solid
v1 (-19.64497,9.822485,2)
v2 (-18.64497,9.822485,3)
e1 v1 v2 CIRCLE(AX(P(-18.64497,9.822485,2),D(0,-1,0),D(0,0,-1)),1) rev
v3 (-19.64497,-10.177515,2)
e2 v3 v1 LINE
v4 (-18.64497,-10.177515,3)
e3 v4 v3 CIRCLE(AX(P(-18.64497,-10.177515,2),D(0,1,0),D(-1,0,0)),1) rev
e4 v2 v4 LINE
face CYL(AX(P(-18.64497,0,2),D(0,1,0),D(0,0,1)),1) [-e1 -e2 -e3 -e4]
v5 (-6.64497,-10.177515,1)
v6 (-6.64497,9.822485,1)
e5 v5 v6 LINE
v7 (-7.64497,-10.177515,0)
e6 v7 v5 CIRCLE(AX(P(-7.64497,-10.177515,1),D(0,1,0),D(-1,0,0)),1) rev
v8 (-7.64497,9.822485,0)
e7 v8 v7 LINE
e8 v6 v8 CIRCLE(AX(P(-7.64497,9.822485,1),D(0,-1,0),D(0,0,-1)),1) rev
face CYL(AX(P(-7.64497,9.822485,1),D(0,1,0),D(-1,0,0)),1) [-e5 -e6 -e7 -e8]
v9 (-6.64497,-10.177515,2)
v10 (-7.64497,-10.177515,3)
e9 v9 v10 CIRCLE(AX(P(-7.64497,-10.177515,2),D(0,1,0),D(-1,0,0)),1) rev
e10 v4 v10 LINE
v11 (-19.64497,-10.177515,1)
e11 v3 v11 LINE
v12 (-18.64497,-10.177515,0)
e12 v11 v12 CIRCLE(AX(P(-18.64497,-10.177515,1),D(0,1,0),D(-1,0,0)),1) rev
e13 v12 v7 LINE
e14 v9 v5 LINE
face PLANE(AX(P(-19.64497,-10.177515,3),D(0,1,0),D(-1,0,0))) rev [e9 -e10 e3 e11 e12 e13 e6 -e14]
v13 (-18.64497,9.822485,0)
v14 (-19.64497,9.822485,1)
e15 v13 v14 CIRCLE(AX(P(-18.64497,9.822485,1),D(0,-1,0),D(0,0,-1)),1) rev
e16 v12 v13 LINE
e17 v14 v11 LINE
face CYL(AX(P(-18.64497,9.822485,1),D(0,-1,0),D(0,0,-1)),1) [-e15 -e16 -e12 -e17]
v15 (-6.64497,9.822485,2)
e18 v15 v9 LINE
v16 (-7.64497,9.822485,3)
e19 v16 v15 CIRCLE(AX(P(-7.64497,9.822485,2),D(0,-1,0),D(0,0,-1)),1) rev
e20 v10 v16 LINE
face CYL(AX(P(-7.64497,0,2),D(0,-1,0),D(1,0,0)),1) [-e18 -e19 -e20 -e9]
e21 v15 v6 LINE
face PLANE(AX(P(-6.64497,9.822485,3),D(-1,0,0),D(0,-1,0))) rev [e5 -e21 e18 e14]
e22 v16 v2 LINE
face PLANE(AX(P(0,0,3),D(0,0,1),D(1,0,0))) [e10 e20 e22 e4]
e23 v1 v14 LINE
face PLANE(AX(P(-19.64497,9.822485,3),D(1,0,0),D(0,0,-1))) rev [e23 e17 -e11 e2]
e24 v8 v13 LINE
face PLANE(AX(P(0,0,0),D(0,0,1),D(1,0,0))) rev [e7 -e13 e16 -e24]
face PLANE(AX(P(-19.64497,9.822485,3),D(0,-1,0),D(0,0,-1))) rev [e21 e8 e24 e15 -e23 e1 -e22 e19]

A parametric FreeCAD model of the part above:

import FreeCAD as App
import Part
import Sketcher

V = App.Vector
Q = App.Units.Quantity


def edges_at(feature, points):
    """Names of the edges that pass closest to the given points."""
    edges = feature.Shape.Edges
    near = lambda p: min(range(len(edges)), key=lambda i: edges[i].distToShape(Part.Vertex(*p))[0])
    return sorted({f"Edge{near(p) + 1}" for p in points})


def add_polygon(sketch, points):
    """Adds a closed chain of lines whose ends are joined by coincident constraints."""
    first, n = sketch.GeometryCount, len(points)
    for a, b in zip(points, points[1:] + points[:1]):
        sketch.addGeometry(Part.LineSegment(App.Vector(*a, 0), App.Vector(*b, 0)), False)
    for i in range(n):
        sketch.addConstraint(Sketcher.Constraint("Coincident", first + i, 2, first + (i + 1) % n, 1))

doc = App.newDocument("Part")
body = doc.addObject("PartDesign::Body", "Body")

# Sketch on XY plane
sketch1 = body.newObject("Sketcher::SketchObject", "Sketch")
sketch1.AttachmentSupport = (doc.getObject("XY_Plane"), [""])
sketch1.MapMode = "FlatFace"
add_polygon(sketch1, [(-19.64497, 9.822485), (-19.64497, -10.177515), (-6.64497, -10.177515), (-6.64497, 9.822485)])  # lines 0-3
sketch1.addConstraint([
    Sketcher.Constraint("Vertical", 0),
    Sketcher.Constraint("Horizontal", 1),
    Sketcher.Constraint("Vertical", 2),
    Sketcher.Constraint("Horizontal", 3),
    Sketcher.Constraint("DistanceX", 1, 1, 1, 2, Q("13 mm")),
    Sketcher.Constraint("DistanceY", 0, 2, 0, 1, Q("20 mm")),
    Sketcher.Constraint("DistanceX", 0, 2, -1, 1, Q("19.64497 mm")),
    Sketcher.Constraint("DistanceY", 0, 2, -1, 1, Q("10.177515 mm")),
])
pad1 = body.newObject("PartDesign::Pad", "Pad")
pad1.Profile = sketch1
pad1.Length = 3
doc.recompute()

fillet = body.newObject("PartDesign::Fillet", "Fillet")
fillet.Base = (pad1, edges_at(pad1, [
    (-6.645, -0.178, 3),
    (-19.645, -0.178, 3),
    (-6.645, -0.178, 0),
    (-19.645, -0.178, 0),
]))
fillet.Radius = 1

doc.recompute()
